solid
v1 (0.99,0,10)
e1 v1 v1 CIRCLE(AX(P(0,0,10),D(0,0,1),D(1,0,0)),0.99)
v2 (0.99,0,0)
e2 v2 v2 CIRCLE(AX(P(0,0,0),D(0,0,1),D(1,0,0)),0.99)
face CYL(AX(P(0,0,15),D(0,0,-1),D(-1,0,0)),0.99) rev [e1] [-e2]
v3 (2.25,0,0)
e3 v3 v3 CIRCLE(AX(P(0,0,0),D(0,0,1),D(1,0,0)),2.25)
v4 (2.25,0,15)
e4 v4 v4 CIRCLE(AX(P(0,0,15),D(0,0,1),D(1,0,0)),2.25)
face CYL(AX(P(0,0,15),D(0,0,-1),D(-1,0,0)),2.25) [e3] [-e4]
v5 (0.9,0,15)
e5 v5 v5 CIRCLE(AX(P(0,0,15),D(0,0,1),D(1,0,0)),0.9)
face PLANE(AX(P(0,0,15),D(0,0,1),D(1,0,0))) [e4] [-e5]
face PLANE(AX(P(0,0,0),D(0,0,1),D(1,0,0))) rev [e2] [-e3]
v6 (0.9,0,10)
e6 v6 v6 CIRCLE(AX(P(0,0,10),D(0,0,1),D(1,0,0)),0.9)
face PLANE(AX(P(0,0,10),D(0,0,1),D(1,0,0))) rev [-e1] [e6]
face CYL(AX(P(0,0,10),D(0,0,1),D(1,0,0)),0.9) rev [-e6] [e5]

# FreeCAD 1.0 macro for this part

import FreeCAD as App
import Part
import Sketcher
from FreeCAD import Vector

doc = App.newDocument("Part")
body = doc.addObject("PartDesign::Body", "Body")

# Sketch on XY plane
sketch1 = body.newObject("Sketcher::SketchObject", "Sketch")
sketch1.AttachmentSupport = (doc.getObject("XY_Plane"), [""])
sketch1.MapMode = "FlatFace"
sketch1.addGeometry([
    Part.Circle(Vector(0, 0, 0), Vector(0, 0, 1), 2.2),
    Part.Circle(Vector(0, 0, 0), Vector(0, 0, 1), 1),
], False)
sketch1.addConstraint([
    Sketcher.Constraint("Coincident", 0, 3, -1, 1),
    Sketcher.Constraint("Coincident", 1, 3, -1, 1),
    Sketcher.Constraint("Diameter", 0, 4.5),
    Sketcher.Constraint("Diameter", 1, 1.98),
])
pad1 = body.newObject("PartDesign::Pad", "Pad")
pad1.Profile = sketch1
pad1.Length = 15

# Sketch on XY plane
sketch2 = body.newObject("Sketcher::SketchObject", "Sketch001")
sketch2.AttachmentSupport = (doc.getObject("XY_Plane"), [""])
sketch2.MapMode = "FlatFace"
sketch2.AttachmentOffset = App.Placement(Vector(0, 0, 15), App.Rotation())
sketch2.addGeometry([
    Part.Circle(Vector(0, 0, 0), Vector(0, 0, 1), 1.4),
    Part.Circle(Vector(0, 0, 0), Vector(0, 0, 1), 0.9),
], False)
sketch2.addConstraint([
    Sketcher.Constraint("Coincident", 0, 3, -1, 1),
    Sketcher.Constraint("Coincident", 1, 3, -1, 1),
    Sketcher.Constraint("Diameter", 1, 1.8),
    Sketcher.Constraint("Diameter", 0, 2.735328),
])
pad2 = body.newObject("PartDesign::Pad", "Pad001")
pad2.Profile = sketch2
pad2.Length = 5
pad2.Reversed = True

doc.recompute()
